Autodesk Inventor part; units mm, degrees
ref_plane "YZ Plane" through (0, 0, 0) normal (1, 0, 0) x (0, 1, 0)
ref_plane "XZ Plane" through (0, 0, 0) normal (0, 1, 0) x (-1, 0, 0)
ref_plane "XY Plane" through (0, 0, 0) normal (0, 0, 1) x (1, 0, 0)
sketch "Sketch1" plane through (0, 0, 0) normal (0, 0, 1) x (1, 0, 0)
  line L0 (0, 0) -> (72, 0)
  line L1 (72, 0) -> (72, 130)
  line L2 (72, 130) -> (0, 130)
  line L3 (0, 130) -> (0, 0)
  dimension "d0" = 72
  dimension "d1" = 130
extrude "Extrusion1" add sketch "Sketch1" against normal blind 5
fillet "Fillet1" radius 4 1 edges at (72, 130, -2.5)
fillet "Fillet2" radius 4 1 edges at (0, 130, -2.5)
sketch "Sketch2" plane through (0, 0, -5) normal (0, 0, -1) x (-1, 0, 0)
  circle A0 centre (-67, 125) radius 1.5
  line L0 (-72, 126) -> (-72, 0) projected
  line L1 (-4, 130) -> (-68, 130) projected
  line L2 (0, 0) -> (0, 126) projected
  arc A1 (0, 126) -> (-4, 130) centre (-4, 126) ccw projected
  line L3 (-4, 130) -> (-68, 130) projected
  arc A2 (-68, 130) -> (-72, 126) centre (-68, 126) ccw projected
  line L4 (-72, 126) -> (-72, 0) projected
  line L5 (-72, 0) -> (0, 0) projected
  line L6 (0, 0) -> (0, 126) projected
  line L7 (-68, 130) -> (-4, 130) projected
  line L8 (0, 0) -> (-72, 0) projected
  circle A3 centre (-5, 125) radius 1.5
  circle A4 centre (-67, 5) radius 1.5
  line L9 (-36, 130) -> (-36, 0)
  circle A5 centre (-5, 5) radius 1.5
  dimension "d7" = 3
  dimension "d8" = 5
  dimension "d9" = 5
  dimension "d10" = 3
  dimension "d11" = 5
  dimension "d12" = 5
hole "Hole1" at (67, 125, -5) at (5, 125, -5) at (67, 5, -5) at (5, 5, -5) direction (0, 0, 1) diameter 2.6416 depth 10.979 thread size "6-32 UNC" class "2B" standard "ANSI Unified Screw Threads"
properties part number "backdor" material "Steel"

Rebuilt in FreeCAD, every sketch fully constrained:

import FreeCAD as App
import Part
import Sketcher

V = App.Vector
Q = App.Units.Quantity


def edges_at(feature, points):
    """Names of the edges that pass closest to the given points."""
    edges = feature.Shape.Edges
    near = lambda p: min(range(len(edges)), key=lambda i: edges[i].distToShape(Part.Vertex(*p))[0])
    return sorted({f"Edge{near(p) + 1}" for p in points})


def add_polygon(sketch, points):
    """Adds a closed chain of lines whose ends are joined by coincident constraints."""
    first, n = sketch.GeometryCount, len(points)
    for a, b in zip(points, points[1:] + points[:1]):
        sketch.addGeometry(Part.LineSegment(App.Vector(*a, 0), App.Vector(*b, 0)), False)
    for i in range(n):
        sketch.addConstraint(Sketcher.Constraint("Coincident", first + i, 2, first + (i + 1) % n, 1))

doc = App.newDocument("Part")
body = doc.addObject("PartDesign::Body", "Body")

sketch1 = body.newObject("Sketcher::SketchObject", "Sketch")
sketch1.AttachmentSupport = (doc.getObject("XY_Plane"), [""])
sketch1.MapMode = "FlatFace"
add_polygon(sketch1, [(0, 130), (0, 0), (72, 0), (72, 130)])
sketch1.addConstraint([
    Sketcher.Constraint("Vertical", 0),
    Sketcher.Constraint("Horizontal", 1),
    Sketcher.Constraint("Vertical", 2),
    Sketcher.Constraint("Horizontal", 3),
    Sketcher.Constraint("Coincident", 0, 2, -1, 1),
    Sketcher.Constraint("DistanceX", 1, 1, 1, 2, Q("72 mm")),
    Sketcher.Constraint("DistanceY", 0, 2, 0, 1, Q("130 mm")),
])
pad1 = body.newObject("PartDesign::Pad", "Pad")
pad1.Profile = sketch1
pad1.Length = 5
pad1.Reversed = True
doc.recompute()

fillet = body.newObject("PartDesign::Fillet", "Fillet")
fillet.Base = (pad1, edges_at(pad1, [(72, 130, -2.5)]))
fillet.Radius = 4
doc.recompute()

fillet2 = body.newObject("PartDesign::Fillet", "Fillet001")
fillet2.Base = (fillet, edges_at(fillet, [(0, 130, -2.5)]))
fillet2.Radius = 4

sketch2 = body.newObject("Sketcher::SketchObject", "Sketch001")
sketch2.AttachmentSupport = (doc.getObject("XY_Plane"), [""])
sketch2.MapMode = "FlatFace"
sketch2.AttachmentOffset = App.Placement(V(0, 0, -5), App.Rotation())
sketch2.addGeometry([
    Part.Circle(V(67, 125, 0), V(0, 0, 1), 1.3),
    Part.Circle(V(5, 125, 0), V(0, 0, 1), 1.3),
    Part.Circle(V(67, 5, 0), V(0, 0, 1), 1.3),
    Part.Circle(V(5, 5, 0), V(0, 0, 1), 1.3),
], False)
sketch2.addConstraint([
    Sketcher.Constraint("Equal", 0, 1),
    Sketcher.Constraint("Equal", 1, 2),
    Sketcher.Constraint("Equal", 2, 3),
    Sketcher.Constraint("Horizontal", 0, 3, 1, 3),
    Sketcher.Constraint("Horizontal", 2, 3, 3, 3),
    Sketcher.Constraint("Vertical", 0, 3, 2, 3),
    Sketcher.Constraint("Vertical", 1, 3, 3, 3),
    Sketcher.Constraint("DistanceX", -1, 1, 0, 3, Q("67 mm")),
    Sketcher.Constraint("DistanceY", -1, 1, 0, 3, Q("125 mm")),
    Sketcher.Constraint("DistanceX", -1, 1, 1, 3, Q("5 mm")),
    Sketcher.Constraint("DistanceY", -1, 1, 2, 3, Q("5 mm")),
    Sketcher.Constraint("Diameter", 0, Q("2.6416 mm")),
])
doc.recompute()
hole = body.newObject("PartDesign::Hole", "Hole")
hole.Profile = sketch2
hole.ThreadType = "None"
hole.Diameter = 2.6416
hole.DepthType = "Dimension"
hole.Depth = 10.979
hole.DrillPoint = "Flat"
hole.Reversed = True

doc.recompute()
